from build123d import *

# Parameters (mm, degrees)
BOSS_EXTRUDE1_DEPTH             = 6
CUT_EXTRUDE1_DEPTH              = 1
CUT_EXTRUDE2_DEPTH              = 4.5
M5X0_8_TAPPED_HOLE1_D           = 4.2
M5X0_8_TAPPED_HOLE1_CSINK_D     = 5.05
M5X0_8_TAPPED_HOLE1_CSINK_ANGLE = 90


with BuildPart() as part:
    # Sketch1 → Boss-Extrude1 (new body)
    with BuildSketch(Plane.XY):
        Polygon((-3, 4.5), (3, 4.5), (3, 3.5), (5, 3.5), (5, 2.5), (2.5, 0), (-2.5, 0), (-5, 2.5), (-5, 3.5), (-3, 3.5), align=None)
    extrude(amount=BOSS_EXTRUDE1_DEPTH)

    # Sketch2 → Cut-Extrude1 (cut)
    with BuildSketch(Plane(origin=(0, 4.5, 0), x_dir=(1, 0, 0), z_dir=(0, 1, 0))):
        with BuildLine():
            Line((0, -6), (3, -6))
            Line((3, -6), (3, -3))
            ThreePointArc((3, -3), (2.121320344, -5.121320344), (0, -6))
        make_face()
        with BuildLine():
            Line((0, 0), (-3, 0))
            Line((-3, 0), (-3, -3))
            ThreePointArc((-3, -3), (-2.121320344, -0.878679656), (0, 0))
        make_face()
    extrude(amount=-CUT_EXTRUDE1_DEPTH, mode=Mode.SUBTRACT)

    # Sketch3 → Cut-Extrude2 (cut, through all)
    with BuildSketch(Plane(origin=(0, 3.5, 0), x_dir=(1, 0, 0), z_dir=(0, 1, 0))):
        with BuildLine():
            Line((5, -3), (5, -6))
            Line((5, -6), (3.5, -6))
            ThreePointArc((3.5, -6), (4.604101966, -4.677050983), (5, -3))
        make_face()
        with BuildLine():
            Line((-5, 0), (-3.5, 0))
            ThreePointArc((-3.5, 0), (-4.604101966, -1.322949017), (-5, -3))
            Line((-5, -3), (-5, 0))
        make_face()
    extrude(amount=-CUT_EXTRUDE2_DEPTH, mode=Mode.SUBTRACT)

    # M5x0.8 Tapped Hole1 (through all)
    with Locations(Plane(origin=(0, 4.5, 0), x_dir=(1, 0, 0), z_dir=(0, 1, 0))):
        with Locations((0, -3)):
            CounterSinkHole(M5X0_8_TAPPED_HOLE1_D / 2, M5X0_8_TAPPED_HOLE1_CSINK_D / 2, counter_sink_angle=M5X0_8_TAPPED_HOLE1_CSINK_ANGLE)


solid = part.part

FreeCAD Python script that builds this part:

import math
import FreeCAD as App
import Part
import Sketcher
Q = App.Units.Quantity

doc = App.newDocument("Part")
body = doc.addObject("PartDesign::Body", "Body")

sketch1 = body.newObject("Sketcher::SketchObject", "Sketch")
sketch1.AttachmentSupport = (doc.getObject("XY_Plane"), [""])
sketch1.MapMode = "FlatFace"
sketch1.addGeometry([
    Part.LineSegment(App.Vector(3, 4.5, 0), App.Vector(-3, 4.5, 0)),
    Part.LineSegment(App.Vector(-3, 4.5, 0), App.Vector(-3, 3.5, 0)),
    Part.LineSegment(App.Vector(-3, 3.5, 0), App.Vector(-5, 3.5, 0)),
    Part.LineSegment(App.Vector(-5, 3.5, 0), App.Vector(-5, 2.5, 0)),
    Part.LineSegment(App.Vector(-5, 2.5, 0), App.Vector(-2.5, 0, 0)),
    Part.LineSegment(App.Vector(-2.5, 0, 0), App.Vector(2.5, 0, 0)),
    Part.LineSegment(App.Vector(2.5, 0, 0), App.Vector(5, 2.5, 0)),
    Part.LineSegment(App.Vector(5, 2.5, 0), App.Vector(5, 3.5, 0)),
    Part.LineSegment(App.Vector(5, 3.5, 0), App.Vector(3, 3.5, 0)),
    Part.LineSegment(App.Vector(3, 3.5, 0), App.Vector(3, 4.5, 0)),
], False)
sketch1.addConstraint([
    Sketcher.Constraint("Coincident", 0, 2, 1, 1),
    Sketcher.Constraint("Coincident", 1, 2, 2, 1),
    Sketcher.Constraint("Coincident", 2, 2, 3, 1),
    Sketcher.Constraint("Coincident", 3, 2, 4, 1),
    Sketcher.Constraint("Coincident", 4, 2, 5, 1),
    Sketcher.Constraint("Coincident", 5, 2, 6, 1),
    Sketcher.Constraint("Coincident", 6, 2, 7, 1),
    Sketcher.Constraint("Coincident", 7, 2, 8, 1),
    Sketcher.Constraint("Coincident", 8, 2, 9, 1),
    Sketcher.Constraint("Coincident", 9, 2, 0, 1),
    Sketcher.Constraint("Horizontal", 0),
    Sketcher.Constraint("Vertical", 1),
    Sketcher.Constraint("Horizontal", 2),
    Sketcher.Constraint("Vertical", 3),
    Sketcher.Constraint("Horizontal", 5),
    Sketcher.Constraint("Vertical", 7),
    Sketcher.Constraint("Horizontal", 8),
    Sketcher.Constraint("Vertical", 9),
    Sketcher.Constraint("Symmetric", 4, 2, 5, 2, -1, 1),
    Sketcher.Constraint("Symmetric", 3, 2, 6, 2, -2),
    Sketcher.Constraint("Symmetric", 1, 2, 8, 2, -2),
    Sketcher.Constraint("Perpendicular", 4, 6),
    Sketcher.Constraint("Equal", 1, 3),
    Sketcher.Constraint("DistanceX", 0, 2, 0, 1, Q("6 mm")),
    Sketcher.Constraint("DistanceX", 2, 2, 2, 1, Q("2 mm")),
    Sketcher.Constraint("DistanceX", 5, 1, 5, 2, Q("5 mm")),
    Sketcher.Constraint("DistanceY", 1, 2, 1, 1, Q("1 mm")),
])
pad1 = body.newObject("PartDesign::Pad", "Pad")
pad1.Profile = sketch1
pad1.Length = 6

sketch2 = body.newObject("Sketcher::SketchObject", "Sketch001")
sketch2.AttachmentSupport = (doc.getObject("XZ_Plane"), [""])
sketch2.MapMode = "FlatFace"
sketch2.AttachmentOffset = App.Placement(App.Vector(0, 0, -4.5), App.Rotation())
sketch2.addGeometry([
    Part.LineSegment(App.Vector(0, 6, 0), App.Vector(3, 6, 0)),
    Part.LineSegment(App.Vector(3, 6, 0), App.Vector(3, 3, 0)),
    Part.ArcOfCircle(Part.Circle(App.Vector(0, 3, 0), App.Vector(0, 0, 1), 3), math.radians(0), math.radians(90)),
    Part.LineSegment(App.Vector(0, 0, 0), App.Vector(-3, 0, 0)),
    Part.LineSegment(App.Vector(-3, 0, 0), App.Vector(-3, 3, 0)),
    Part.ArcOfCircle(Part.Circle(App.Vector(0, 3, 0), App.Vector(0, 0, 1), 3), math.radians(180), math.radians(270)),
], False)
sketch2.addConstraint([
    Sketcher.Constraint("Coincident", 0, 2, 1, 1),
    Sketcher.Constraint("Tangent", 1, 2, 2, 1),
    Sketcher.Constraint("Tangent", 2, 2, 0, 1),
    Sketcher.Constraint("Coincident", 3, 2, 4, 1),
    Sketcher.Constraint("Tangent", 4, 2, 5, 1),
    Sketcher.Constraint("Tangent", 5, 2, 3, 1),
    Sketcher.Constraint("Horizontal", 0),
    Sketcher.Constraint("Vertical", 1),
    Sketcher.Constraint("Horizontal", 3),
    Sketcher.Constraint("Vertical", 4),
    Sketcher.Constraint("Coincident", 5, 2, -1, 1),
    Sketcher.Constraint("Coincident", 5, 3, 2, 3),
    Sketcher.Constraint("Equal", 2, 5),
    Sketcher.Constraint("Radius", 2, Q("3 mm")),
])
pocket1 = body.newObject("PartDesign::Pocket", "Pocket")
pocket1.Profile = sketch2
pocket1.Length = 1
pocket1.Reversed = True

sketch3 = body.newObject("Sketcher::SketchObject", "Sketch002")
sketch3.AttachmentSupport = (doc.getObject("XZ_Plane"), [""])
sketch3.MapMode = "FlatFace"
sketch3.AttachmentOffset = App.Placement(App.Vector(0, 0, -3.5), App.Rotation())
sketch3.addGeometry([
    Part.LineSegment(App.Vector(5, 6, 0), App.Vector(5, 3, 0)),
    Part.ArcOfCircle(Part.Circle(App.Vector(1.2, 3, 0), App.Vector(0, 0, 1), 3.8), math.radians(0), math.radians(53)),
    Part.LineSegment(App.Vector(3.5, 6, 0), App.Vector(5, 6, 0)),
    Part.LineSegment(App.Vector(-3.5, 0, 0), App.Vector(-5, 0, 0)),
    Part.LineSegment(App.Vector(-5, 0, 0), App.Vector(-5, 3, 0)),
    Part.ArcOfCircle(Part.Circle(App.Vector(-1.2, 3, 0), App.Vector(0, 0, 1), 3.8), math.radians(-180), math.radians(-127)),
], False)
sketch3.addConstraint([
    Sketcher.Constraint("Tangent", 0, 2, 1, 1),
    Sketcher.Constraint("Coincident", 1, 2, 2, 1),
    Sketcher.Constraint("Coincident", 2, 2, 0, 1),
    Sketcher.Constraint("Coincident", 3, 2, 4, 1),
    Sketcher.Constraint("Tangent", 4, 2, 5, 1),
    Sketcher.Constraint("Coincident", 5, 2, 3, 1),
    Sketcher.Constraint("Vertical", 0),
    Sketcher.Constraint("Horizontal", 2),
    Sketcher.Constraint("Horizontal", 3),
    Sketcher.Constraint("Vertical", 4),
    Sketcher.Constraint("Equal", 1, 5),
    Sketcher.Constraint("Symmetric", 1, 3, 5, 3, -2),
    Sketcher.Constraint("PointOnObject", 3, 2, -1),
    Sketcher.Constraint("Equal", 2, 3),
    Sketcher.Constraint("DistanceY", 0, 2, 0, 1, Q("3 mm")),
    Sketcher.Constraint("Radius", 1, Q("3.75 mm")),
    Sketcher.Constraint("DistanceX", -1, 1, 0, 2, Q("5 mm")),
])
pocket2 = body.newObject("PartDesign::Pocket", "Pocket001")
pocket2.Profile = sketch3
pocket2.Type = "ThroughAll"
pocket2.Reversed = True

sketch4 = body.newObject("Sketcher::SketchObject", "Sketch003")
sketch4.AttachmentSupport = (doc.getObject("XZ_Plane"), [""])
sketch4.MapMode = "FlatFace"
sketch4.AttachmentOffset = App.Placement(App.Vector(0, 0, -4.5), App.Rotation())
sketch4.addGeometry(Part.Circle(App.Vector(0, 3, 0), App.Vector(0, 0, 1), 2.1), False)
sketch4.addConstraint([
    Sketcher.Constraint("PointOnObject", 0, 3, -2),
    Sketcher.Constraint("Diameter", 0, Q("4.2 mm")),
    Sketcher.Constraint("DistanceY", -1, 1, 0, 3, Q("3 mm")),
])
doc.recompute()
hole = body.newObject("PartDesign::Hole", "Hole")
hole.Profile = sketch4
hole.ThreadType = "None"
hole.Diameter = 4.2
hole.DepthType = "ThroughAll"
hole.HoleCutType = "Countersink"
hole.HoleCutDiameter = 5.05
hole.HoleCutCountersinkAngle = 90
hole.Reversed = True

doc.recompute()
